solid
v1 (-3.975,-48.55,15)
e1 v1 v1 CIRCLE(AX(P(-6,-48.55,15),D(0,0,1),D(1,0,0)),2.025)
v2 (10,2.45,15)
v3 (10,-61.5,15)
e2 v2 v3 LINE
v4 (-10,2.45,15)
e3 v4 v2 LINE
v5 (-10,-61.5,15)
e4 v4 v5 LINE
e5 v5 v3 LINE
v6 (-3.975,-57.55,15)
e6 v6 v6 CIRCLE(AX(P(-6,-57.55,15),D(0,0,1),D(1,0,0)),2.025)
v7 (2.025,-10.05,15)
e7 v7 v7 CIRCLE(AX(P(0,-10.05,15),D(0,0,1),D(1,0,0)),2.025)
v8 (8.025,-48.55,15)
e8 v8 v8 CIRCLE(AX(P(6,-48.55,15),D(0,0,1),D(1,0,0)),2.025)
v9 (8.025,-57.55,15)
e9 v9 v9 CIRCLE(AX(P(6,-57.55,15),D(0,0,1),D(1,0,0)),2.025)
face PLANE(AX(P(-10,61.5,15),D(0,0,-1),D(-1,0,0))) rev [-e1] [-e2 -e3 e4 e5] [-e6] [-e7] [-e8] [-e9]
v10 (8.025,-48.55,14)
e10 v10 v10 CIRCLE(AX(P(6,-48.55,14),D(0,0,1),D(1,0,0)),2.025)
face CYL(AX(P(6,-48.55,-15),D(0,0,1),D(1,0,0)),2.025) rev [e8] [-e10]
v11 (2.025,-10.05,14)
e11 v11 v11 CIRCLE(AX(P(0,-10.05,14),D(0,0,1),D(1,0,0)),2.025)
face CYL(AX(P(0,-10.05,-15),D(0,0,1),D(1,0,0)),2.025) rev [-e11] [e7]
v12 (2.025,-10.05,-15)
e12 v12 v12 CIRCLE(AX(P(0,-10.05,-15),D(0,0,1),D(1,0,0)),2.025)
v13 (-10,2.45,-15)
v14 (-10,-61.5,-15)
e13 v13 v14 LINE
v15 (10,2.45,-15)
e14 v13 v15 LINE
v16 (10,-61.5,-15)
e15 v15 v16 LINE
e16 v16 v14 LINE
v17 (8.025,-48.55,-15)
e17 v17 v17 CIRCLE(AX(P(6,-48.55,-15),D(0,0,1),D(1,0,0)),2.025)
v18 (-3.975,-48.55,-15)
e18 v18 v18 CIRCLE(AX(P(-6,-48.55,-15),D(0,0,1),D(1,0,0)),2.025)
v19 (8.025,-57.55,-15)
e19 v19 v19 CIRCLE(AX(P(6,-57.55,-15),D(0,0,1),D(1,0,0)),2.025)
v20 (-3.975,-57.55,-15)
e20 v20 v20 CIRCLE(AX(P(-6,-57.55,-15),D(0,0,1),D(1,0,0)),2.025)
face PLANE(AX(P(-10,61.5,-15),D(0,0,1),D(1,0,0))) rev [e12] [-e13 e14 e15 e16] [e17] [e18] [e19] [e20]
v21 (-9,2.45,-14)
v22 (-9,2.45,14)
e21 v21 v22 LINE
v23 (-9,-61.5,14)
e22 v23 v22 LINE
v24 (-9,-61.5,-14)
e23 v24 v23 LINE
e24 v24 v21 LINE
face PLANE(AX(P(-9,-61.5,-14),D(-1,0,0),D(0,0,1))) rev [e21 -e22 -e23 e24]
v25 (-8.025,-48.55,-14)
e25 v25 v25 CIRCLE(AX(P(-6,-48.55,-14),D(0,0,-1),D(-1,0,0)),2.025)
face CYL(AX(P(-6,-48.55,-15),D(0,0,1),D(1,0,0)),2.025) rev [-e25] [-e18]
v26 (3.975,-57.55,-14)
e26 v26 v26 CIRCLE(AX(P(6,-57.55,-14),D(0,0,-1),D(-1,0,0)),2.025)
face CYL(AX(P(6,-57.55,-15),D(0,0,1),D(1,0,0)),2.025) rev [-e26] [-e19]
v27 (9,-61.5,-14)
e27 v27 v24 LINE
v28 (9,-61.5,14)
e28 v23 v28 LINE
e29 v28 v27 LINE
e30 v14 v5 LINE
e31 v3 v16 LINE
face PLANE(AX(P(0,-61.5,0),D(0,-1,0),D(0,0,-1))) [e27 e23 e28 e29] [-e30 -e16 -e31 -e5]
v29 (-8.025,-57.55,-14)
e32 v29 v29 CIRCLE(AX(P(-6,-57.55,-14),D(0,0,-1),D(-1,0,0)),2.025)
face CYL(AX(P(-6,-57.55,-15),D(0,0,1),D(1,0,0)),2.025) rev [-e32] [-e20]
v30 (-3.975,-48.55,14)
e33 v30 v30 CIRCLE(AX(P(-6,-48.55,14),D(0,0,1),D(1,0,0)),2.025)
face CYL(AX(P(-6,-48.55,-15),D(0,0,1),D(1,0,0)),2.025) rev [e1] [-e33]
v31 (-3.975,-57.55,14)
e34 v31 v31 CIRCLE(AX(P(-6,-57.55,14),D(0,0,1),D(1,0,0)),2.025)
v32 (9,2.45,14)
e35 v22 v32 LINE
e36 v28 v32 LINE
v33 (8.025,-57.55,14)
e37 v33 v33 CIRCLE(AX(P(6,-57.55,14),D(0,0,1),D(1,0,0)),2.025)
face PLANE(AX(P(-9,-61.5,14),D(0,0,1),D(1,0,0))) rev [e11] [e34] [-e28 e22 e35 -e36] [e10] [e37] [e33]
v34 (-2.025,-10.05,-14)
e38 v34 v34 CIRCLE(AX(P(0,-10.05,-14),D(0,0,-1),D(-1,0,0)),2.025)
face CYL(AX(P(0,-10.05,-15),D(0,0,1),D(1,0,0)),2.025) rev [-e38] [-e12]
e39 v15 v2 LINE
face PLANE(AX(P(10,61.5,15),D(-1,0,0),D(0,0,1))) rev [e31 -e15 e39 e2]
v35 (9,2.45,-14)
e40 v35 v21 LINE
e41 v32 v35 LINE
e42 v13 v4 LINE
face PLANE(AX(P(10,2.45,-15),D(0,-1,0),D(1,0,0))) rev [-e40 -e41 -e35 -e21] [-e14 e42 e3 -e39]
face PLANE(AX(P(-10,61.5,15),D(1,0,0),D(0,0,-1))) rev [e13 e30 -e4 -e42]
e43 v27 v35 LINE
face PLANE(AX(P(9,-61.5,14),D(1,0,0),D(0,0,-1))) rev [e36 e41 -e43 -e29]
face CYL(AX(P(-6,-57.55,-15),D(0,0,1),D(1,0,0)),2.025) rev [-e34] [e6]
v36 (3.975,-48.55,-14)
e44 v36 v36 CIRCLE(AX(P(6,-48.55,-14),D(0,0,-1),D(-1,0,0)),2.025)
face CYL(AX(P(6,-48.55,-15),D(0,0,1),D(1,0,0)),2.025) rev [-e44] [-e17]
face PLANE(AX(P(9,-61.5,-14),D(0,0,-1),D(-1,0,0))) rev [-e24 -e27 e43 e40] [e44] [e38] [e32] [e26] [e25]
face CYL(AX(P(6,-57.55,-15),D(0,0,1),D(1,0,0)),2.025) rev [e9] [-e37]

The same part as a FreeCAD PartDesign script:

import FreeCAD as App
import Part
import Sketcher

V = App.Vector

doc = App.newDocument("Part")
body = doc.addObject("PartDesign::Body", "Body")

# Sketch on XZ plane
sketch1 = body.newObject("Sketcher::SketchObject", "Sketch")
sketch1.AttachmentSupport = (doc.getObject("XZ_Plane"), [""])
sketch1.MapMode = "FlatFace"
sketch1.addGeometry([
    Part.LineSegment(V(-10, -15, 0), V(-10, 15, 0)),
    Part.LineSegment(V(-10, 15, 0), V(10, 15, 0)),
    Part.LineSegment(V(10, 15, 0), V(10, -15, 0)),
    Part.LineSegment(V(10, -15, 0), V(-10, -15, 0)),
], False)
sketch1.addConstraint([
    Sketcher.Constraint("Coincident", 0, 2, 1, 1),
    Sketcher.Constraint("Coincident", 1, 2, 2, 1),
    Sketcher.Constraint("Coincident", 2, 2, 3, 1),
    Sketcher.Constraint("Coincident", 3, 2, 0, 1),
    Sketcher.Constraint("Vertical", 0),
    Sketcher.Constraint("Horizontal", 1),
    Sketcher.Constraint("Vertical", 2),
    Sketcher.Constraint("Horizontal", 3),
    Sketcher.Constraint("Symmetric", 0, 2, 2, 2, -1, 1),
    Sketcher.Constraint("DistanceX", 1, 1, 1, 2, 20.0),
    Sketcher.Constraint("DistanceY", 0, 1, 0, 2, 30.0),
])
pad1 = body.newObject("PartDesign::Pad", "Pad")
pad1.Profile = sketch1
pad1.Length = 123
pad1.Midplane = True

# Sketch on XZ plane
sketch2 = body.newObject("Sketcher::SketchObject", "Sketch001")
sketch2.AttachmentSupport = (doc.getObject("XZ_Plane"), [""])
sketch2.MapMode = "FlatFace"
sketch2.addGeometry([
    Part.LineSegment(V(-9, -14, 0), V(-9, 14, 0)),
    Part.LineSegment(V(-9, 14, 0), V(9, 14, 0)),
    Part.LineSegment(V(9, 14, 0), V(9, -14, 0)),
    Part.LineSegment(V(9, -14, 0), V(-9, -14, 0)),
], False)
sketch2.addConstraint([
    Sketcher.Constraint("Coincident", 0, 2, 1, 1),
    Sketcher.Constraint("Coincident", 1, 2, 2, 1),
    Sketcher.Constraint("Coincident", 2, 2, 3, 1),
    Sketcher.Constraint("Coincident", 3, 2, 0, 1),
    Sketcher.Constraint("Vertical", 0),
    Sketcher.Constraint("Horizontal", 1),
    Sketcher.Constraint("Vertical", 2),
    Sketcher.Constraint("Horizontal", 3),
    Sketcher.Constraint("Symmetric", 0, 2, 2, 2, -1, 1),
    Sketcher.Constraint("DistanceX", 1, 1, 1, 2, 18.0),
    Sketcher.Constraint("DistanceY", 0, 1, 0, 2, 28.0),
])
pocket1 = body.newObject("PartDesign::Pocket", "Pocket")
pocket1.Profile = sketch2
pocket1.Type = "ThroughAll"
pocket1.Midplane = True

# Sketch on YZ plane
sketch3 = body.newObject("Sketcher::SketchObject", "Sketch002")
sketch3.AttachmentSupport = (doc.getObject("YZ_Plane"), [""])
sketch3.MapMode = "FlatFace"
sketch3.AttachmentOffset = App.Placement(V(0, 0, -10), App.Rotation())
sketch3.addGeometry([
    Part.LineSegment(V(62, -15, 0), V(16, -15, 0)),
    Part.LineSegment(V(16, -15, 0), V(16, 15, 0)),
    Part.LineSegment(V(16, 15, 0), V(62, 15, 0)),
    Part.LineSegment(V(62, 15, 0), V(62, -15, 0)),
], False)
sketch3.addConstraint([
    Sketcher.Constraint("Coincident", 0, 2, 1, 1),
    Sketcher.Constraint("Coincident", 1, 2, 2, 1),
    Sketcher.Constraint("Coincident", 2, 2, 3, 1),
    Sketcher.Constraint("Coincident", 3, 2, 0, 1),
    Sketcher.Constraint("Horizontal", 0),
    Sketcher.Constraint("Vertical", 1),
    Sketcher.Constraint("Horizontal", 2),
    Sketcher.Constraint("Vertical", 3),
    Sketcher.Constraint("DistanceY", 1, 1, 1, 2, 30.0),
    Sketcher.Constraint("DistanceY", 0, 2, -1, 1, 15.0),
    Sketcher.Constraint("DistanceX", 0, 2, 0, 1, 45.05),
    Sketcher.Constraint("DistanceX", -1, 1, 2, 2, 61.5),
])
pocket2 = body.newObject("PartDesign::Pocket", "Pocket001")
pocket2.Profile = sketch3
pocket2.Type = "ThroughAll"
pocket2.Reversed = True

# Sketch on XY plane
sketch4 = body.newObject("Sketcher::SketchObject", "Sketch003")
sketch4.AttachmentSupport = (doc.getObject("XY_Plane"), [""])
sketch4.MapMode = "FlatFace"
sketch4.AttachmentOffset = App.Placement(V(0, 0, 15), App.Rotation())
sketch4.addGeometry([
    Part.Circle(V(-6, -48.5, 0), V(0, 0, 1), 2),
    Part.Circle(V(6, -48.5, 0), V(0, 0, 1), 2),
], False)
sketch4.addConstraint([
    Sketcher.Constraint("Equal", 0, 1),
    Sketcher.Constraint("Symmetric", 0, 3, 1, 3, -2),
    Sketcher.Constraint("Diameter", 0, 4.05),
    Sketcher.Constraint("DistanceX", 0, 3, -1, 1, 6.0),
    Sketcher.Constraint("DistanceY", 0, 3, -1, 1, 48.55),
])
pocket3 = body.newObject("PartDesign::Pocket", "Pocket002")
pocket3.Profile = sketch4
pocket3.Type = "ThroughAll"

# Sketch on XY plane
sketch5 = body.newObject("Sketcher::SketchObject", "Sketch004")
sketch5.AttachmentSupport = (doc.getObject("XY_Plane"), [""])
sketch5.MapMode = "FlatFace"
sketch5.AttachmentOffset = App.Placement(V(0, 0, 15), App.Rotation())
sketch5.addGeometry([
    Part.LineSegment(V(-10, 16, 0), V(-10, 2, 0)),
    Part.LineSegment(V(-10, 2, 0), V(10, 2, 0)),
    Part.LineSegment(V(10, 2, 0), V(10, 16, 0)),
    Part.LineSegment(V(10, 16, 0), V(-10, 16, 0)),
], False)
sketch5.addConstraint([
    Sketcher.Constraint("Coincident", 0, 2, 1, 1),
    Sketcher.Constraint("Coincident", 1, 2, 2, 1),
    Sketcher.Constraint("Coincident", 2, 2, 3, 1),
    Sketcher.Constraint("Coincident", 3, 2, 0, 1),
    Sketcher.Constraint("Vertical", 0),
    Sketcher.Constraint("Horizontal", 1),
    Sketcher.Constraint("Vertical", 2),
    Sketcher.Constraint("Horizontal", 3),
    Sketcher.Constraint("DistanceX", 1, 1, 1, 2, 20.0),
    Sketcher.Constraint("DistanceY", 0, 2, 0, 1, 14.0),
    Sketcher.Constraint("DistanceX", 0, 2, -1, 1, 10.0),
    Sketcher.Constraint("DistanceY", -1, 1, 0, 2, 2.45),
])
pocket4 = body.newObject("PartDesign::Pocket", "Pocket003")
pocket4.Profile = sketch5
pocket4.Type = "ThroughAll"
pocket4.Midplane = True

# Sketch on XY plane
sketch6 = body.newObject("Sketcher::SketchObject", "Sketch005")
sketch6.AttachmentSupport = (doc.getObject("XY_Plane"), [""])
sketch6.MapMode = "FlatFace"
sketch6.AttachmentOffset = App.Placement(V(0, 0, 15), App.Rotation())
sketch6.addGeometry([
    Part.Circle(V(-6, -57.5, 0), V(0, 0, 1), 2),
    Part.Circle(V(6, -57.5, 0), V(0, 0, 1), 2),
], False)
sketch6.addConstraint([
    Sketcher.Constraint("Equal", 0, 1),
    Sketcher.Constraint("Symmetric", 0, 3, 1, 3, -2),
    Sketcher.Constraint("Diameter", 0, 4.05),
    Sketcher.Constraint("DistanceX", 0, 3, -1, 1, 6.0),
    Sketcher.Constraint("DistanceY", 0, 3, -1, 1, 57.55),
])
pocket5 = body.newObject("PartDesign::Pocket", "Pocket004")
pocket5.Profile = sketch6
pocket5.Type = "ThroughAll"
pocket5.Midplane = True

# Sketch on XY plane
sketch7 = body.newObject("Sketcher::SketchObject", "Sketch006")
sketch7.AttachmentSupport = (doc.getObject("XY_Plane"), [""])
sketch7.MapMode = "FlatFace"
sketch7.AttachmentOffset = App.Placement(V(0, 0, 15), App.Rotation())
sketch7.addGeometry(Part.Circle(V(0, -10.1, 0), V(0, 0, 1), 2), False)
sketch7.addConstraint([
    Sketcher.Constraint("PointOnObject", 0, 3, -2),
    Sketcher.Constraint("Diameter", 0, 4.05),
    Sketcher.Constraint("DistanceY", 0, 3, -1, 1, 10.05),
])
pocket6 = body.newObject("PartDesign::Pocket", "Pocket005")
pocket6.Profile = sketch7
pocket6.Type = "ThroughAll"

doc.recompute()
